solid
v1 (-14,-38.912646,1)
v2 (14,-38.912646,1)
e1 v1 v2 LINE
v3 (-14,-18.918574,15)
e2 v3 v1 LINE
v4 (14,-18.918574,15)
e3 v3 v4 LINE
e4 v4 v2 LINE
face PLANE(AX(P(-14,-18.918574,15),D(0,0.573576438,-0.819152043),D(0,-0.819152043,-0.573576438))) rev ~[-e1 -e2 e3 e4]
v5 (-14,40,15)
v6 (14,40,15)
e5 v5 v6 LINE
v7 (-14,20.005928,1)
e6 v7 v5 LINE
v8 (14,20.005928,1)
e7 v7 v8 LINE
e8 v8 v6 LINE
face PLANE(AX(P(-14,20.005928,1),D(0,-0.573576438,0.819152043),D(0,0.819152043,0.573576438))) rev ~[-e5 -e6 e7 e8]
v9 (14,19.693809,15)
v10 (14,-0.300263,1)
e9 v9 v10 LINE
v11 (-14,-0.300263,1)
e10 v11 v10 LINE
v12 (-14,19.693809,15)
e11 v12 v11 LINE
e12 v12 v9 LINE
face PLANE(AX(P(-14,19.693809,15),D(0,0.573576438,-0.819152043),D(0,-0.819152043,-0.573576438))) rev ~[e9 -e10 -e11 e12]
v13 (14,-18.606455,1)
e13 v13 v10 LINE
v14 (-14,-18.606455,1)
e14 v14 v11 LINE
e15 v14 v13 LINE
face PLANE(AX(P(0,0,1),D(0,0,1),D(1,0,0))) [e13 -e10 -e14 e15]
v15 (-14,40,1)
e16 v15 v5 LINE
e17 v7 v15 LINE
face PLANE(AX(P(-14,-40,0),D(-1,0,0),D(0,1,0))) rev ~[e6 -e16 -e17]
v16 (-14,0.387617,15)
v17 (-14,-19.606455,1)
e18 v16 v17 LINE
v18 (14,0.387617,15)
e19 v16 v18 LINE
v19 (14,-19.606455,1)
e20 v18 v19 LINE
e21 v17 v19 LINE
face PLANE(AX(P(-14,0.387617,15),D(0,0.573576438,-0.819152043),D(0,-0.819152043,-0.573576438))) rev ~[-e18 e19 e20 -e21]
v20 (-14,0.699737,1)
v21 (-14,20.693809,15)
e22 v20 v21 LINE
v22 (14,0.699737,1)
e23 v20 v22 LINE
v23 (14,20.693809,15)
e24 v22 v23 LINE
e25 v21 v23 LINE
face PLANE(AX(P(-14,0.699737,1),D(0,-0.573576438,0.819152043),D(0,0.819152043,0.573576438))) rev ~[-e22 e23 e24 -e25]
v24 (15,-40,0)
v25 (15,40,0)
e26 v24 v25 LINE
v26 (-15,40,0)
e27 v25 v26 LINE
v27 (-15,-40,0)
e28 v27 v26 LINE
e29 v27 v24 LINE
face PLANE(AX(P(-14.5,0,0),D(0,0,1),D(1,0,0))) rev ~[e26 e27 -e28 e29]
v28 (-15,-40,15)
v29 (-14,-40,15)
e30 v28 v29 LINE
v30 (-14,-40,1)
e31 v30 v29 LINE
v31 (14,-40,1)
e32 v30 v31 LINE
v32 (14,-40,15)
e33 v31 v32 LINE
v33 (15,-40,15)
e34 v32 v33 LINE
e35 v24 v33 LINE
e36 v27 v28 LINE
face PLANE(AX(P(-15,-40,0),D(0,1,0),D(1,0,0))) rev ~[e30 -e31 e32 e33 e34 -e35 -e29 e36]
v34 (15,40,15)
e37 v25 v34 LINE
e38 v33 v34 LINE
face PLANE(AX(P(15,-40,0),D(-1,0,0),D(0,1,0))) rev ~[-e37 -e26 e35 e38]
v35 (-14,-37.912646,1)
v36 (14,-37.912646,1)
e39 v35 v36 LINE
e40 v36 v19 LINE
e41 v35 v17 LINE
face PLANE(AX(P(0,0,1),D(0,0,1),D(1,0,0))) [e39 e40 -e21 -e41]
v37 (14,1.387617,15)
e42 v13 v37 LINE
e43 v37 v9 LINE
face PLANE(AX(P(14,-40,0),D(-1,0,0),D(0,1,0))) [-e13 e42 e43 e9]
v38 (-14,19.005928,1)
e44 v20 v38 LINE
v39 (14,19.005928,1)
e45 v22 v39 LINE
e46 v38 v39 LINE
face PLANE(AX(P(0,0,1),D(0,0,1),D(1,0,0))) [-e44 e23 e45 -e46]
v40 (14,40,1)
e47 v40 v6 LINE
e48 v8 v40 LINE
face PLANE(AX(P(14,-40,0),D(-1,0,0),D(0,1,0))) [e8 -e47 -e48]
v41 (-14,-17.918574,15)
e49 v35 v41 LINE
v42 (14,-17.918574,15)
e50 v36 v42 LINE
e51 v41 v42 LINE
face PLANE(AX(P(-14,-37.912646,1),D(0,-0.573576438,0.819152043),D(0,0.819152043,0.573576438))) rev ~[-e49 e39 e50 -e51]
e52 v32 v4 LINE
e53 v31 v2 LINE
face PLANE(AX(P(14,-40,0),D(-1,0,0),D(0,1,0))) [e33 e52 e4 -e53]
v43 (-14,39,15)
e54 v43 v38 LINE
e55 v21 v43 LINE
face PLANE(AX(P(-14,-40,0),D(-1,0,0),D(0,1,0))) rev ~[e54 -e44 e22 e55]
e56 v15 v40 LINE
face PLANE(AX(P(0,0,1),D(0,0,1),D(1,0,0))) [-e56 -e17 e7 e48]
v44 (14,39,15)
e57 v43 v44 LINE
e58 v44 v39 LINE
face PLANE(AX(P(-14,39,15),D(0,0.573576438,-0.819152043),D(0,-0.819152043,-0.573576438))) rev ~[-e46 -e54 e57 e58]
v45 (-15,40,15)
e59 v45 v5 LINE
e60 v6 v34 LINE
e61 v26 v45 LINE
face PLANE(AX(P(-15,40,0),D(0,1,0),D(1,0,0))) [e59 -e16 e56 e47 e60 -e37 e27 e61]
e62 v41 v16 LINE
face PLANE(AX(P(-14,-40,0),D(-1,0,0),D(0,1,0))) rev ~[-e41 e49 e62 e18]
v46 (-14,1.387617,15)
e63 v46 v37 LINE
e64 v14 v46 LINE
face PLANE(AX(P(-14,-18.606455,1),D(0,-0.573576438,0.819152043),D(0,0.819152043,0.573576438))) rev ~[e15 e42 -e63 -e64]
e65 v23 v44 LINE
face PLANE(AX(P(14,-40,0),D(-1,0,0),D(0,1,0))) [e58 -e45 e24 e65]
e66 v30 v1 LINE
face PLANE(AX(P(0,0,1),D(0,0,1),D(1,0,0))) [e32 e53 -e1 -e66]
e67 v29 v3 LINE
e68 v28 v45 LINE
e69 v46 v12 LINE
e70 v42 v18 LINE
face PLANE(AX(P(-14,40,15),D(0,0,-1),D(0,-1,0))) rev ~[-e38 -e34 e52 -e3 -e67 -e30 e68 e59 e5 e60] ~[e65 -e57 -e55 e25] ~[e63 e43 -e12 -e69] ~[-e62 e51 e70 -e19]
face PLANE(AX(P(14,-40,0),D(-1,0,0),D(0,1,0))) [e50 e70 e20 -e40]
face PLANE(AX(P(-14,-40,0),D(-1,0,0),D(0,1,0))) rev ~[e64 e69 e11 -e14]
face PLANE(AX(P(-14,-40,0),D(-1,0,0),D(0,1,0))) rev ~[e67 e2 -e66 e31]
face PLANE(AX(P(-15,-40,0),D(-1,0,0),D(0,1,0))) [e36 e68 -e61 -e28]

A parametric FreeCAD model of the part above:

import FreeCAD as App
import Part
import Sketcher
Q = App.Units.Quantity

doc = App.newDocument("Part")
body = doc.addObject("PartDesign::Body", "Body")

# Sketch on XY plane
sketch1 = body.newObject("Sketcher::SketchObject", "Sketch")
sketch1.AttachmentSupport = (doc.getObject("XY_Plane"), [""])
sketch1.MapMode = "FlatFace"
sketch1.addGeometry(Part.LineSegment(App.Vector(-14, 40, 0), App.Vector(-14, -40, 0)), False)
sketch1.addGeometry(Part.LineSegment(App.Vector(-14, -40, 0), App.Vector(14, -40, 0)), False)
sketch1.addGeometry(Part.LineSegment(App.Vector(14, -40, 0), App.Vector(14, 40, 0)), False)
sketch1.addGeometry(Part.LineSegment(App.Vector(14, 40, 0), App.Vector(-14, 40, 0)), False)
sketch1.addConstraint(Sketcher.Constraint("Coincident", 0, 2, 1, 1))
sketch1.addConstraint(Sketcher.Constraint("Coincident", 1, 2, 2, 1))
sketch1.addConstraint(Sketcher.Constraint("Coincident", 2, 2, 3, 1))
sketch1.addConstraint(Sketcher.Constraint("Coincident", 3, 2, 0, 1))
sketch1.addConstraint(Sketcher.Constraint("Vertical", 0))
sketch1.addConstraint(Sketcher.Constraint("Horizontal", 1))
sketch1.addConstraint(Sketcher.Constraint("Vertical", 2))
sketch1.addConstraint(Sketcher.Constraint("Horizontal", 3))
sketch1.addConstraint(Sketcher.Constraint("Symmetric", 0, 2, 2, 2, -1, 1))
sketch1.addConstraint(Sketcher.Constraint("DistanceX", 1, 1, 1, 2, 28.0))
sketch1.addConstraint(Sketcher.Constraint("DistanceY", 0, 2, 0, 1, 80.0))
pad1 = body.newObject("PartDesign::Pad", "Pad")
pad1.Profile = sketch1
pad1.Length = 1

# Sketch on XY plane
sketch2 = body.newObject("Sketcher::SketchObject", "Sketch001")
sketch2.AttachmentSupport = (doc.getObject("XY_Plane"), [""])
sketch2.MapMode = "FlatFace"
sketch2.addGeometry(Part.LineSegment(App.Vector(-15, 40, 0), App.Vector(-15, -40, 0)), False)
sketch2.addGeometry(Part.LineSegment(App.Vector(-15, -40, 0), App.Vector(-14, -40, 0)), False)
sketch2.addGeometry(Part.LineSegment(App.Vector(-14, -40, 0), App.Vector(-14, 40, 0)), False)
sketch2.addGeometry(Part.LineSegment(App.Vector(-14, 40, 0), App.Vector(-15, 40, 0)), False)
sketch2.addGeometry(Part.LineSegment(App.Vector(14, 40, 0), App.Vector(14, -40, 0)), False)
sketch2.addGeometry(Part.LineSegment(App.Vector(14, -40, 0), App.Vector(15, -40, 0)), False)
sketch2.addGeometry(Part.LineSegment(App.Vector(15, -40, 0), App.Vector(15, 40, 0)), False)
sketch2.addGeometry(Part.LineSegment(App.Vector(15, 40, 0), App.Vector(14, 40, 0)), False)
sketch2.addConstraint(Sketcher.Constraint("Coincident", 0, 2, 1, 1))
sketch2.addConstraint(Sketcher.Constraint("Coincident", 1, 2, 2, 1))
sketch2.addConstraint(Sketcher.Constraint("Coincident", 2, 2, 3, 1))
sketch2.addConstraint(Sketcher.Constraint("Coincident", 3, 2, 0, 1))
sketch2.addConstraint(Sketcher.Constraint("Coincident", 4, 2, 5, 1))
sketch2.addConstraint(Sketcher.Constraint("Coincident", 5, 2, 6, 1))
sketch2.addConstraint(Sketcher.Constraint("Coincident", 6, 2, 7, 1))
sketch2.addConstraint(Sketcher.Constraint("Coincident", 7, 2, 4, 1))
sketch2.addConstraint(Sketcher.Constraint("Vertical", 0))
sketch2.addConstraint(Sketcher.Constraint("Horizontal", 1))
sketch2.addConstraint(Sketcher.Constraint("Vertical", 2))
sketch2.addConstraint(Sketcher.Constraint("Horizontal", 3))
sketch2.addConstraint(Sketcher.Constraint("Vertical", 4))
sketch2.addConstraint(Sketcher.Constraint("Horizontal", 5))
sketch2.addConstraint(Sketcher.Constraint("Vertical", 6))
sketch2.addConstraint(Sketcher.Constraint("Horizontal", 7))
sketch2.addConstraint(Sketcher.Constraint("Symmetric", 2, 2, 4, 2, -1, 1))
sketch2.addConstraint(Sketcher.Constraint("Symmetric", 0, 2, 6, 2, -1, 1))
sketch2.addConstraint(Sketcher.Constraint("Horizontal", 1, 2, 4, 2))
sketch2.addConstraint(Sketcher.Constraint("DistanceX", 1, 1, 1, 2, 1.0))
sketch2.addConstraint(Sketcher.Constraint("DistanceY", 0, 2, 0, 1, 80.0))
sketch2.addConstraint(Sketcher.Constraint("DistanceX", 0, 2, -1, 1, 15.0))
pad2 = body.newObject("PartDesign::Pad", "Pad001")
pad2.Profile = sketch2
pad2.Length = 15

# Sketch on YZ plane
sketch3 = body.newObject("Sketcher::SketchObject", "Sketch002")
sketch3.AttachmentSupport = (doc.getObject("YZ_Plane"), [""])
sketch3.MapMode = "FlatFace"
sketch3.AttachmentOffset = App.Placement(App.Vector(0, 0, -14), App.Rotation())
sketch3.addGeometry(Part.LineSegment(App.Vector(19, 1, 0), App.Vector(20, 1, 0)), False)
sketch3.addGeometry(Part.LineSegment(App.Vector(20, 1, 0), App.Vector(40, 15, 0)), False)
sketch3.addGeometry(Part.LineSegment(App.Vector(40, 15, 0), App.Vector(39, 15, 0)), False)
sketch3.addGeometry(Part.LineSegment(App.Vector(39, 15, 0), App.Vector(19, 1, 0)), False)
sketch3.addGeometry(Part.LineSegment(App.Vector(-0.3, 1, 0), App.Vector(0.7, 1, 0)), False)
sketch3.addGeometry(Part.LineSegment(App.Vector(0.7, 1, 0), App.Vector(20.7, 15, 0)), False)
sketch3.addGeometry(Part.LineSegment(App.Vector(20.7, 15, 0), App.Vector(19.7, 15, 0)), False)
sketch3.addGeometry(Part.LineSegment(App.Vector(19.7, 15, 0), App.Vector(-0.3, 1, 0)), False)
sketch3.addGeometry(Part.LineSegment(App.Vector(-19.6, 1, 0), App.Vector(-18.6, 1, 0)), False)
sketch3.addGeometry(Part.LineSegment(App.Vector(-18.6, 1, 0), App.Vector(1.4, 15, 0)), False)
sketch3.addGeometry(Part.LineSegment(App.Vector(1.4, 15, 0), App.Vector(0.4, 15, 0)), False)
sketch3.addGeometry(Part.LineSegment(App.Vector(0.4, 15, 0), App.Vector(-19.6, 1, 0)), False)
sketch3.addGeometry(Part.LineSegment(App.Vector(-38.9, 1, 0), App.Vector(-37.9, 1, 0)), False)
sketch3.addGeometry(Part.LineSegment(App.Vector(-37.9, 1, 0), App.Vector(-17.9, 15, 0)), False)
sketch3.addGeometry(Part.LineSegment(App.Vector(-17.9, 15, 0), App.Vector(-18.9, 15, 0)), False)
sketch3.addGeometry(Part.LineSegment(App.Vector(-18.9, 15, 0), App.Vector(-38.9, 1, 0)), False)
sketch3.addConstraint(Sketcher.Constraint("Coincident", 0, 2, 1, 1))
sketch3.addConstraint(Sketcher.Constraint("Coincident", 1, 2, 2, 1))
sketch3.addConstraint(Sketcher.Constraint("Coincident", 2, 2, 3, 1))
sketch3.addConstraint(Sketcher.Constraint("Coincident", 3, 2, 0, 1))
sketch3.addConstraint(Sketcher.Constraint("Coincident", 4, 2, 5, 1))
sketch3.addConstraint(Sketcher.Constraint("Coincident", 5, 2, 6, 1))
sketch3.addConstraint(Sketcher.Constraint("Coincident", 6, 2, 7, 1))
sketch3.addConstraint(Sketcher.Constraint("Coincident", 7, 2, 4, 1))
sketch3.addConstraint(Sketcher.Constraint("Coincident", 8, 2, 9, 1))
sketch3.addConstraint(Sketcher.Constraint("Coincident", 9, 2, 10, 1))
sketch3.addConstraint(Sketcher.Constraint("Coincident", 10, 2, 11, 1))
sketch3.addConstraint(Sketcher.Constraint("Coincident", 11, 2, 8, 1))
sketch3.addConstraint(Sketcher.Constraint("Coincident", 12, 2, 13, 1))
sketch3.addConstraint(Sketcher.Constraint("Coincident", 13, 2, 14, 1))
sketch3.addConstraint(Sketcher.Constraint("Coincident", 14, 2, 15, 1))
sketch3.addConstraint(Sketcher.Constraint("Coincident", 15, 2, 12, 1))
sketch3.addConstraint(Sketcher.Constraint("Horizontal", 0))
sketch3.addConstraint(Sketcher.Constraint("Horizontal", 2))
sketch3.addConstraint(Sketcher.Constraint("Horizontal", 4))
sketch3.addConstraint(Sketcher.Constraint("Horizontal", 6))
sketch3.addConstraint(Sketcher.Constraint("Horizontal", 8))
sketch3.addConstraint(Sketcher.Constraint("Horizontal", 10))
sketch3.addConstraint(Sketcher.Constraint("Horizontal", 12))
sketch3.addConstraint(Sketcher.Constraint("Horizontal", 14))
sketch3.addConstraint(Sketcher.Constraint("Parallel", 1, 3))
sketch3.addConstraint(Sketcher.Constraint("Parallel", 3, 5))
sketch3.addConstraint(Sketcher.Constraint("Parallel", 5, 7))
sketch3.addConstraint(Sketcher.Constraint("Parallel", 7, 9))
sketch3.addConstraint(Sketcher.Constraint("Parallel", 9, 11))
sketch3.addConstraint(Sketcher.Constraint("Parallel", 11, 13))
sketch3.addConstraint(Sketcher.Constraint("Parallel", 13, 15))
sketch3.addConstraint(Sketcher.Constraint("Horizontal", 3, 2, 4, 2))
sketch3.addConstraint(Sketcher.Constraint("Horizontal", 2, 2, 5, 2))
sketch3.addConstraint(Sketcher.Constraint("Horizontal", 7, 2, 8, 2))
sketch3.addConstraint(Sketcher.Constraint("Horizontal", 6, 2, 9, 2))
sketch3.addConstraint(Sketcher.Constraint("Horizontal", 11, 2, 12, 2))
sketch3.addConstraint(Sketcher.Constraint("Horizontal", 10, 2, 13, 2))
sketch3.addConstraint(Sketcher.Constraint("Equal", 2, 4))
sketch3.addConstraint(Sketcher.Constraint("Equal", 6, 8))
sketch3.addConstraint(Sketcher.Constraint("Equal", 10, 12))
sketch3.addConstraint(Sketcher.Constraint("DistanceX", 0, 1, 0, 2, 1.0))
sketch3.addConstraint(Sketcher.Constraint("Angle", 1, Q("35 deg")))
sketch3.addConstraint(Sketcher.Constraint("DistanceY", -1, 1, 0, 2, 1.0))
sketch3.addConstraint(Sketcher.Constraint("DistanceX", -1, 1, 1, 2, 40.0))
sketch3.addConstraint(Sketcher.Constraint("DistanceY", -1, 1, 1, 2, 15.0))
sketch3.addConstraint(Sketcher.Constraint("DistanceX", -1, 1, 5, 2, 20.693809))
sketch3.addConstraint(Sketcher.Constraint("DistanceX", 8, 2, 7, 2, 18.306192))
sketch3.addConstraint(Sketcher.Constraint("DistanceX", 12, 2, 11, 2, 18.306191))
pad3 = body.newObject("PartDesign::Pad", "Pad002")
pad3.Profile = sketch3
pad3.Type = "UpToLast"

doc.recompute()
